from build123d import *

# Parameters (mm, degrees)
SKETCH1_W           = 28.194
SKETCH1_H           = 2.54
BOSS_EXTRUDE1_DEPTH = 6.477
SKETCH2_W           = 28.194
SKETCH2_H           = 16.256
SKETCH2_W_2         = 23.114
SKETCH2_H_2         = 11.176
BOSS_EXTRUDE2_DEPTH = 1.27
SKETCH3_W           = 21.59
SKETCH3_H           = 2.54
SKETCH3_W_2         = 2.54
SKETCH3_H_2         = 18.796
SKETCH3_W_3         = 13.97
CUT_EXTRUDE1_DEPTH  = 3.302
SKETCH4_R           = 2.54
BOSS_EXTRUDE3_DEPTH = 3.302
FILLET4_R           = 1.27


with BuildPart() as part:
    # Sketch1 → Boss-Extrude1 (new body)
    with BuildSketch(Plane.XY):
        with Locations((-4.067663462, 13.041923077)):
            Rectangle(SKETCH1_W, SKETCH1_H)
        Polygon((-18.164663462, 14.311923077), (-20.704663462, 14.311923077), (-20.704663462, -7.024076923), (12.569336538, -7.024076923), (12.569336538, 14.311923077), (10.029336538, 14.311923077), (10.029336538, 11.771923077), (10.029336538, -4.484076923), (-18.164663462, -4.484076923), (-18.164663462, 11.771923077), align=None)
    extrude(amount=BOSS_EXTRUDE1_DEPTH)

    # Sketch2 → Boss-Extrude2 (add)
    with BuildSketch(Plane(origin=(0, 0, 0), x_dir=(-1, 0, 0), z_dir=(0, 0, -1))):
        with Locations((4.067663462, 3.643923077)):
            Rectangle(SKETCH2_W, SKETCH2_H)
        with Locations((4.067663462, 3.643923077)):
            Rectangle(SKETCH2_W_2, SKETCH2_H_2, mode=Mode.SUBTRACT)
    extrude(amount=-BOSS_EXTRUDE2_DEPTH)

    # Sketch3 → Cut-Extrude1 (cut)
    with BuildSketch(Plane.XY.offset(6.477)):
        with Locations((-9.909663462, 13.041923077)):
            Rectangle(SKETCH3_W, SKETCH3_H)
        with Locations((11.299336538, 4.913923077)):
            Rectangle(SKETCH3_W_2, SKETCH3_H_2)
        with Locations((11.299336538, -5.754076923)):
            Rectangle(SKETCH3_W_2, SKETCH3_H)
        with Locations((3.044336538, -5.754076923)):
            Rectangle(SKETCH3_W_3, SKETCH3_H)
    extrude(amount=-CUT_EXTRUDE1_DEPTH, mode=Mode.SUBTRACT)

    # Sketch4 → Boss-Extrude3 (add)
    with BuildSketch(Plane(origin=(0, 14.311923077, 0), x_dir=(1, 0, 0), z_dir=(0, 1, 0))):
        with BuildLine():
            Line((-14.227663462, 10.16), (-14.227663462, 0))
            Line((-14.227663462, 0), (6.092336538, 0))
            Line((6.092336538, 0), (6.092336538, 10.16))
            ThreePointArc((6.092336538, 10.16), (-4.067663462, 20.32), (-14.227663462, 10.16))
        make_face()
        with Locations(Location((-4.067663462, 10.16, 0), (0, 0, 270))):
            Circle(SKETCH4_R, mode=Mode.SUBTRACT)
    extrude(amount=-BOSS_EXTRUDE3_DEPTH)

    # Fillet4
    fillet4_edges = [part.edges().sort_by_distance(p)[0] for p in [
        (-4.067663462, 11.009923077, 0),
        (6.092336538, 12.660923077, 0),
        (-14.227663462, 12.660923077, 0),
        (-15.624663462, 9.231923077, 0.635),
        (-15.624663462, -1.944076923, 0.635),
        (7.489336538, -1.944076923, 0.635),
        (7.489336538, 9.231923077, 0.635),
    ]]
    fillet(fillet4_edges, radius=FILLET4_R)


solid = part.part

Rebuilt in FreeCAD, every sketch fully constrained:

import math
import FreeCAD as App
import Part
import Sketcher

V = App.Vector
Q = App.Units.Quantity


def edges_at(feature, points):
    """Names of the edges that pass closest to the given points."""
    edges = feature.Shape.Edges
    near = lambda p: min(range(len(edges)), key=lambda i: edges[i].distToShape(Part.Vertex(*p))[0])
    return sorted({f"Edge{near(p) + 1}" for p in points})


def add_polygon(sketch, points):
    """Adds a closed chain of lines whose ends are joined by coincident constraints."""
    first, n = sketch.GeometryCount, len(points)
    for a, b in zip(points, points[1:] + points[:1]):
        sketch.addGeometry(Part.LineSegment(App.Vector(*a, 0), App.Vector(*b, 0)), False)
    for i in range(n):
        sketch.addConstraint(Sketcher.Constraint("Coincident", first + i, 2, first + (i + 1) % n, 1))

doc = App.newDocument("Part")
params = doc.addObject("Spreadsheet::Sheet", "Params")
for row, (alias, value) in enumerate([
    ("sketch1_width", "1.31 in"),
    ("sketch1_width2", "1.11 in"),
    ("sketch1_height", "0.84 in"),
    ("sketch1_height2", "0.64 in"),
    ("pad1_length", "0.255 in"),
    ("sketch2_width", "1.11 in"),
    ("sketch2_width2", "0.91 in"),
    ("sketch2_height", "0.64 in"),
    ("sketch2_height2", "0.44 in"),
    ("pad2_length", "0.05 in"),
    ("sketch3_width", "0.1 in"),
    ("sketch3_width2", "0.85 in"),
    ("sketch3_width3", "0.55 in"),
    ("sketch3_height", "0.74 in"),
    ("pocket1_length", "0.13 in"),
    ("sketch4_diameter", "0.2 in"),
    ("sketch4_radius", "0.4 in"),
    ("sketch4_height", "0.4 in"),
    ("pad3_length", "0.13 in"),
    ("fillet_radius", "0.05 in"),
], start=1):
    params.set(f"A{row}", alias)
    params.set(f"B{row}", "=" + value)
    params.setAlias(f"B{row}", alias)

body = doc.addObject("PartDesign::Body", "Body")

# Sketch on XY plane
sketch1 = body.newObject("Sketcher::SketchObject", "Sketch")
sketch1.AttachmentSupport = (doc.getObject("XY_Plane"), [""])
sketch1.MapMode = "FlatFace"
add_polygon(sketch1, [(-21, 14), (-21, -7), (13, -7), (13, 14)])  # lines 0-3
add_polygon(sketch1, [(-18, 12), (10, 12), (10, -4), (-18, -4)])  # lines 4-7
sketch1.addConstraint(Sketcher.Constraint("Vertical", 0))
sketch1.addConstraint(Sketcher.Constraint("Horizontal", 1))
sketch1.addConstraint(Sketcher.Constraint("Vertical", 2))
sketch1.addConstraint(Sketcher.Constraint("Horizontal", 3))
sketch1.addConstraint(Sketcher.Constraint("Horizontal", 4))
sketch1.addConstraint(Sketcher.Constraint("Vertical", 5))
sketch1.addConstraint(Sketcher.Constraint("Horizontal", 6))
sketch1.addConstraint(Sketcher.Constraint("Vertical", 7))
sketch1.addConstraint(Sketcher.Constraint("DistanceX", 1, 1, 1, 2, Q("1.31 in")))
sketch1.addConstraint(Sketcher.Constraint("DistanceX", 4, 1, 4, 2, Q("1.11 in")))
sketch1.addConstraint(Sketcher.Constraint("DistanceY", 0, 2, 0, 1, Q("0.84 in")))
sketch1.addConstraint(Sketcher.Constraint("DistanceY", 5, 2, 5, 1, Q("0.64 in")))
sketch1.addConstraint(Sketcher.Constraint("DistanceX", 4, 2, 2, 2, Q("0.1 in")))
sketch1.addConstraint(Sketcher.Constraint("DistanceY", 4, 2, 2, 2, Q("0.1 in")))
sketch1.addConstraint(Sketcher.Constraint("DistanceX", 0, 2, -1, 1, Q("20.704663 mm")))
sketch1.addConstraint(Sketcher.Constraint("DistanceY", 0, 2, -1, 1, Q("7.024077 mm")))
sketch1.setExpression("Constraints[16]", "Params.sketch1_width")
sketch1.setExpression("Constraints[17]", "Params.sketch1_width2")
sketch1.setExpression("Constraints[18]", "Params.sketch1_height")
sketch1.setExpression("Constraints[19]", "Params.sketch1_height2")
pad1 = body.newObject("PartDesign::Pad", "Pad")
pad1.Profile = sketch1
pad1.setExpression("Length", "Params.pad1_length")

# Sketch on XY plane
sketch2 = body.newObject("Sketcher::SketchObject", "Sketch001")
sketch2.AttachmentSupport = (doc.getObject("XY_Plane"), [""])
sketch2.MapMode = "FlatFace"
add_polygon(sketch2, [(10, 12), (10, -4), (-18, -4), (-18, 12)])  # lines 0-3
add_polygon(sketch2, [(-16, -2), (7, -2), (7, 9), (-16, 9)])  # lines 4-7
sketch2.addConstraint(Sketcher.Constraint("Vertical", 0))
sketch2.addConstraint(Sketcher.Constraint("Horizontal", 1))
sketch2.addConstraint(Sketcher.Constraint("Vertical", 2))
sketch2.addConstraint(Sketcher.Constraint("Horizontal", 3))
sketch2.addConstraint(Sketcher.Constraint("Horizontal", 4))
sketch2.addConstraint(Sketcher.Constraint("Vertical", 5))
sketch2.addConstraint(Sketcher.Constraint("Horizontal", 6))
sketch2.addConstraint(Sketcher.Constraint("Vertical", 7))
sketch2.addConstraint(Sketcher.Constraint("DistanceX", 1, 2, 1, 1, Q("1.11 in")))
sketch2.addConstraint(Sketcher.Constraint("DistanceX", 4, 1, 4, 2, Q("0.91 in")))
sketch2.addConstraint(Sketcher.Constraint("DistanceY", 0, 2, 0, 1, Q("0.64 in")))
sketch2.addConstraint(Sketcher.Constraint("DistanceY", 5, 1, 5, 2, Q("0.44 in")))
sketch2.addConstraint(Sketcher.Constraint("DistanceX", 4, 2, 0, 2, Q("0.1 in")))
sketch2.addConstraint(Sketcher.Constraint("DistanceY", 0, 2, 4, 2, Q("0.1 in")))
sketch2.addConstraint(Sketcher.Constraint("DistanceX", -1, 1, 0, 2, Q("10.029337 mm")))
sketch2.addConstraint(Sketcher.Constraint("DistanceY", 0, 2, -1, 1, Q("4.484077 mm")))
sketch2.setExpression("Constraints[16]", "Params.sketch2_width")
sketch2.setExpression("Constraints[17]", "Params.sketch2_width2")
sketch2.setExpression("Constraints[18]", "Params.sketch2_height")
sketch2.setExpression("Constraints[19]", "Params.sketch2_height2")
pad2 = body.newObject("PartDesign::Pad", "Pad001")
pad2.Profile = sketch2
pad2.setExpression("Length", "Params.pad2_length")

# Sketch on XY plane
sketch3 = body.newObject("Sketcher::SketchObject", "Sketch002")
sketch3.AttachmentSupport = (doc.getObject("XY_Plane"), [""])
sketch3.MapMode = "FlatFace"
sketch3.AttachmentOffset = App.Placement(V(0, 0, 0.255 * 25.4), App.Rotation())
add_polygon(sketch3, [(-20.7, 14.3), (-20.7, 11.8), (0.9, 11.8), (0.9, 14.3)])  # lines 0-3
add_polygon(sketch3, [(10, 14.3), (10, -4.5), (-3.9, -4.5), (-3.9, -7), (12.6, -7), (12.6, 14.3)])  # lines 4-9
sketch3.addConstraint(Sketcher.Constraint("Vertical", 0))
sketch3.addConstraint(Sketcher.Constraint("Horizontal", 1))
sketch3.addConstraint(Sketcher.Constraint("Vertical", 2))
sketch3.addConstraint(Sketcher.Constraint("Horizontal", 3))
sketch3.addConstraint(Sketcher.Constraint("Vertical", 4))
sketch3.addConstraint(Sketcher.Constraint("Horizontal", 5))
sketch3.addConstraint(Sketcher.Constraint("Vertical", 6))
sketch3.addConstraint(Sketcher.Constraint("Horizontal", 7))
sketch3.addConstraint(Sketcher.Constraint("Vertical", 8))
sketch3.addConstraint(Sketcher.Constraint("Horizontal", 9))
sketch3.addConstraint(Sketcher.Constraint("Horizontal", 3, 2, 8, 2))
sketch3.addConstraint(Sketcher.Constraint("Equal", 9, 0))
sketch3.addConstraint(Sketcher.Constraint("Equal", 2, 6))
sketch3.addConstraint(Sketcher.Constraint("DistanceX", 9, 2, 9, 1, Q("0.1 in")))
sketch3.addConstraint(Sketcher.Constraint("DistanceX", 1, 1, 1, 2, Q("0.85 in")))
sketch3.addConstraint(Sketcher.Constraint("DistanceX", 5, 2, 5, 1, Q("0.55 in")))
sketch3.addConstraint(Sketcher.Constraint("DistanceY", 4, 2, 4, 1, Q("0.74 in")))
sketch3.addConstraint(Sketcher.Constraint("DistanceX", 1, 2, 4, 2, Q("0.36 in")))
sketch3.addConstraint(Sketcher.Constraint("DistanceX", 0, 2, -1, 1, Q("20.704663 mm")))
sketch3.addConstraint(Sketcher.Constraint("DistanceY", -1, 1, 0, 2, Q("11.771923 mm")))
sketch3.setExpression("Constraints[23]", "Params.sketch3_width")
sketch3.setExpression("Constraints[24]", "Params.sketch3_width2")
sketch3.setExpression("Constraints[25]", "Params.sketch3_width3")
sketch3.setExpression("Constraints[26]", "Params.sketch3_height")
pocket1 = body.newObject("PartDesign::Pocket", "Pocket")
pocket1.Profile = sketch3
pocket1.setExpression("Length", "Params.pocket1_length")

# Sketch on XZ plane
sketch4 = body.newObject("Sketcher::SketchObject", "Sketch003")
sketch4.AttachmentSupport = (doc.getObject("XZ_Plane"), [""])
sketch4.MapMode = "FlatFace"
sketch4.AttachmentOffset = App.Placement(V(0, 0, -14.311923), App.Rotation())
sketch4.addGeometry(Part.LineSegment(V(-14.2, -10.2, 0), V(-14.2, 0, 0)), False)
sketch4.addGeometry(Part.LineSegment(V(-14.2, 0, 0), V(6.1, 0, 0)), False)
sketch4.addGeometry(Part.LineSegment(V(6.1, 0, 0), V(6.1, -10.2, 0)), False)
sketch4.addGeometry(Part.ArcOfCircle(Part.Circle(V(-4.1, -10.2, 0), V(0, 0, 1), 10.2), math.radians(180), math.radians(360)), False)
sketch4.addGeometry(Part.Circle(V(-4.1, -10.2, 0), V(0, 0, 1), 2.5), False)
sketch4.addConstraint(Sketcher.Constraint("Coincident", 0, 2, 1, 1))
sketch4.addConstraint(Sketcher.Constraint("Coincident", 1, 2, 2, 1))
sketch4.addConstraint(Sketcher.Constraint("Tangent", 2, 2, 3, 2))
sketch4.addConstraint(Sketcher.Constraint("Tangent", 3, 1, 0, 1))
sketch4.addConstraint(Sketcher.Constraint("Vertical", 0))
sketch4.addConstraint(Sketcher.Constraint("Horizontal", 1))
sketch4.addConstraint(Sketcher.Constraint("Vertical", 2))
sketch4.addConstraint(Sketcher.Constraint("Coincident", 4, 3, 3, 3))
sketch4.addConstraint(Sketcher.Constraint("PointOnObject", 0, 2, -1))
sketch4.addConstraint(Sketcher.Constraint("Diameter", 4, Q("0.2 in")))
sketch4.addConstraint(Sketcher.Constraint("Radius", 3, Q("0.4 in")))
sketch4.addConstraint(Sketcher.Constraint("DistanceY", 0, 1, 0, 2, Q("0.4 in")))
sketch4.addConstraint(Sketcher.Constraint("DistanceX", 3, 3, -1, 1, Q("4.067663 mm")))
sketch4.setExpression("Constraints[9]", "Params.sketch4_diameter")
sketch4.setExpression("Constraints[10]", "Params.sketch4_radius")
sketch4.setExpression("Constraints[11]", "Params.sketch4_height")
pad3 = body.newObject("PartDesign::Pad", "Pad002")
pad3.Profile = sketch4
pad3.setExpression("Length", "Params.pad3_length")
doc.recompute()

fillet = body.newObject("PartDesign::Fillet", "Fillet")
fillet.Base = (pad3, edges_at(pad3, [
    (-4.068, 11.01, 0),
    (6.092, 12.661, 0),
    (-14.228, 12.661, 0),
    (-15.625, 9.232, 0.635),
    (-15.625, -1.944, 0.635),
    (7.489, -1.944, 0.635),
    (7.489, 9.232, 0.635),
]))
fillet.setExpression("Radius", "Params.fillet_radius")

doc.recompute()
